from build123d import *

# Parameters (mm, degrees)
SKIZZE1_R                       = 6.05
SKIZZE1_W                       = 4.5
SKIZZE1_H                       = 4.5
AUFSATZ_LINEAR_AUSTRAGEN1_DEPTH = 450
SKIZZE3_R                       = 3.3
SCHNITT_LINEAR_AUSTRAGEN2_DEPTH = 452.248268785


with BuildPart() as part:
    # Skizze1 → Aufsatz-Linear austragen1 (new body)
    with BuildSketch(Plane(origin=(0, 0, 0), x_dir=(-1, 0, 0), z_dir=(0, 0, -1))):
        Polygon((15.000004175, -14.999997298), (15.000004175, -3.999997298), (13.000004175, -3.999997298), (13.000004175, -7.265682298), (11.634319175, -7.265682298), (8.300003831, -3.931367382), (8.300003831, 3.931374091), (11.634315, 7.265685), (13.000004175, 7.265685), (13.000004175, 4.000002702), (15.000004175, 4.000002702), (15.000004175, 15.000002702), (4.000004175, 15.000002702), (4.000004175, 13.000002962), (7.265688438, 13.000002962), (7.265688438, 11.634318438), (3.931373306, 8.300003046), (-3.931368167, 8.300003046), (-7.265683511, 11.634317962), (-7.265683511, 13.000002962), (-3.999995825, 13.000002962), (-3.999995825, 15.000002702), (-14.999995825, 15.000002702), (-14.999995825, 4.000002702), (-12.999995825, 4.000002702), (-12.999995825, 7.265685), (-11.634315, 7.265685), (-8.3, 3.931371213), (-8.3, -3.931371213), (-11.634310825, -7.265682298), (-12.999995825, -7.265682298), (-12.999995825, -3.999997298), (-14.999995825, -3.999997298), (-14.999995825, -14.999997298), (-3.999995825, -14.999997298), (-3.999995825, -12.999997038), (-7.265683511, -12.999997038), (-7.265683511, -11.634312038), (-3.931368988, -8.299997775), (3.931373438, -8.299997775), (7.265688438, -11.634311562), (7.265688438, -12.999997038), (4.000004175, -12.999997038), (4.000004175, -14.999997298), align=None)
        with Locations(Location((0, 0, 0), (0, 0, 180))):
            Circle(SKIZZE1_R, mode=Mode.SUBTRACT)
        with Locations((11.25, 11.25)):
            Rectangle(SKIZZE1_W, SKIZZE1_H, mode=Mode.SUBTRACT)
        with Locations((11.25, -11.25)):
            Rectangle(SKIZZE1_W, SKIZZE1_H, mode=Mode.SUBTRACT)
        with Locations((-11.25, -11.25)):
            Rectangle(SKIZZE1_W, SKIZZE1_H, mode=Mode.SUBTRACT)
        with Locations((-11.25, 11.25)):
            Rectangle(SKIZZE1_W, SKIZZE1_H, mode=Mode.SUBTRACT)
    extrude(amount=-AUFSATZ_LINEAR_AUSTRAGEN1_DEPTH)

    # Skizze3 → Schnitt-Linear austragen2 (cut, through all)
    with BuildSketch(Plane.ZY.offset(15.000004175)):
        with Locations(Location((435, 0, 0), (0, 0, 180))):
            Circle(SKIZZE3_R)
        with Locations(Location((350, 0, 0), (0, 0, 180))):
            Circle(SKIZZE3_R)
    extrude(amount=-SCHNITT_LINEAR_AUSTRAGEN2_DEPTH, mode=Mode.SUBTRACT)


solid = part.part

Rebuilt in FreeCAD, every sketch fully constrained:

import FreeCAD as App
import Part
import Sketcher

V = App.Vector
Q = App.Units.Quantity


def add_polygon(sketch, points):
    """Adds a closed chain of lines whose ends are joined by coincident constraints."""
    first, n = sketch.GeometryCount, len(points)
    for a, b in zip(points, points[1:] + points[:1]):
        sketch.addGeometry(Part.LineSegment(App.Vector(*a, 0), App.Vector(*b, 0)), False)
    for i in range(n):
        sketch.addConstraint(Sketcher.Constraint("Coincident", first + i, 2, first + (i + 1) % n, 1))

doc = App.newDocument("Part")
body = doc.addObject("PartDesign::Body", "Body")

# Sketch on XY plane
sketch1 = doc.addObject("Sketcher::SketchObject", "Sketch")
body.addObject(sketch1)
sketch1.AttachmentSupport = (doc.XY_Plane, [""])
sketch1.MapMode = "FlatFace"
add_polygon(sketch1, [(-15, -15), (-15, -4), (-13, -4), (-13, -7.3), (-11.6, -7.3), (-8.3, -3.9), (-8.3, 3.9), (-11.6, 7.3), (-13, 7.3), (-13, 4), (-15, 4), (-15, 15), (-4, 15), (-4, 13), (-7.3, 13), (-7.3, 11.6), (-3.9, 8.3), (3.9, 8.3), (7.3, 11.6), (7.3, 13), (4, 13), (4, 15), (15, 15), (15, 4), (13, 4), (13, 7.3), (11.6, 7.3), (8.3, 3.9), (8.3, -3.9), (11.6, -7.3), (13, -7.3), (13, -4), (15, -4), (15, -15), (4, -15), (4, -13), (7.3, -13), (7.3, -11.6), (3.9, -8.3), (-3.9, -8.3), (-7.3, -11.6), (-7.3, -13), (-4, -13), (-4, -15)])  # lines 0-43
add_polygon(sketch1, [(9, -13.5), (13.5, -13.5), (13.5, -9), (9, -9)])  # lines 44-47
add_polygon(sketch1, [(-13.5, -13.5), (-9, -13.5), (-9, -9), (-13.5, -9)])  # lines 48-51
add_polygon(sketch1, [(9, 9), (13.5, 9), (13.5, 13.5), (9, 13.5)])  # lines 52-55
sketch1.addGeometry(Part.Circle(V(0, 0, 0), V(0, 0, 1), 6), False)  # 56
add_polygon(sketch1, [(-13.5, 9), (-9, 9), (-9, 13.5), (-13.5, 13.5)])  # lines 57-60
sketch1.addConstraint([
    Sketcher.Constraint("Vertical", 0),
    Sketcher.Constraint("Horizontal", 1),
    Sketcher.Constraint("Vertical", 2),
    Sketcher.Constraint("Horizontal", 3),
    Sketcher.Constraint("Vertical", 5),
    Sketcher.Constraint("Horizontal", 7),
    Sketcher.Constraint("Vertical", 8),
    Sketcher.Constraint("Horizontal", 9),
    Sketcher.Constraint("Vertical", 10),
    Sketcher.Constraint("Horizontal", 11),
    Sketcher.Constraint("Vertical", 12),
    Sketcher.Constraint("Horizontal", 13),
    Sketcher.Constraint("Vertical", 14),
    Sketcher.Constraint("Horizontal", 16),
    Sketcher.Constraint("Vertical", 18),
    Sketcher.Constraint("Horizontal", 19),
    Sketcher.Constraint("Vertical", 20),
    Sketcher.Constraint("Horizontal", 21),
    Sketcher.Constraint("Vertical", 22),
    Sketcher.Constraint("Horizontal", 23),
    Sketcher.Constraint("Vertical", 24),
    Sketcher.Constraint("Horizontal", 25),
    Sketcher.Constraint("Vertical", 27),
    Sketcher.Constraint("Horizontal", 29),
    Sketcher.Constraint("Vertical", 30),
    Sketcher.Constraint("Horizontal", 31),
    Sketcher.Constraint("Vertical", 32),
    Sketcher.Constraint("Horizontal", 33),
    Sketcher.Constraint("Vertical", 34),
    Sketcher.Constraint("Horizontal", 35),
    Sketcher.Constraint("Vertical", 36),
    Sketcher.Constraint("Horizontal", 38),
    Sketcher.Constraint("Vertical", 40),
    Sketcher.Constraint("Horizontal", 41),
    Sketcher.Constraint("Vertical", 42),
    Sketcher.Constraint("Horizontal", 43),
    Sketcher.Constraint("Horizontal", 44),
    Sketcher.Constraint("Vertical", 45),
    Sketcher.Constraint("Horizontal", 46),
    Sketcher.Constraint("Vertical", 47),
    Sketcher.Constraint("Horizontal", 48),
    Sketcher.Constraint("Vertical", 49),
    Sketcher.Constraint("Horizontal", 50),
    Sketcher.Constraint("Vertical", 51),
    Sketcher.Constraint("Horizontal", 52),
    Sketcher.Constraint("Vertical", 53),
    Sketcher.Constraint("Horizontal", 54),
    Sketcher.Constraint("Vertical", 55),
    Sketcher.Constraint("Horizontal", 57),
    Sketcher.Constraint("Vertical", 58),
    Sketcher.Constraint("Horizontal", 59),
    Sketcher.Constraint("Vertical", 60),
    Sketcher.Constraint("Coincident", 56, 3, -1, 1),
    Sketcher.Constraint("Symmetric", 0, 2, 22, 2, -1, 1),
    Sketcher.Constraint("Symmetric", 2, 2, 24, 2, -1, 1),
    Sketcher.Constraint("Symmetric", 4, 2, 26, 2, -1, 1),
    Sketcher.Constraint("Symmetric", 6, 2, 28, 2, -1, 1),
    Sketcher.Constraint("Symmetric", 8, 2, 30, 2, -1, 1),
    Sketcher.Constraint("Symmetric", 10, 2, 32, 2, -1, 1),
    Sketcher.Constraint("Symmetric", 13, 2, 35, 2, -1, 1),
    Sketcher.Constraint("Symmetric", 15, 2, 37, 2, -1, 1),
    Sketcher.Constraint("Symmetric", 17, 2, 39, 2, -1, 1),
    Sketcher.Constraint("Symmetric", 20, 2, 42, 2, -1, 1),
    Sketcher.Constraint("Symmetric", 50, 2, 52, 2, -1, 1),
    Sketcher.Constraint("Symmetric", 48, 2, 54, 2, -1, 1),
    Sketcher.Constraint("Symmetric", 46, 2, 57, 2, -1, 1),
    Sketcher.Constraint("Symmetric", 44, 2, 59, 2, -1, 1),
    Sketcher.Constraint("Symmetric", 14, 2, 17, 2, -2),
    Sketcher.Constraint("Symmetric", 12, 2, 19, 2, -2),
    Sketcher.Constraint("Symmetric", 10, 2, 21, 2, -2),
    Sketcher.Constraint("Symmetric", 8, 2, 23, 2, -2),
    Sketcher.Constraint("Symmetric", 6, 2, 25, 2, -2),
    Sketcher.Constraint("Symmetric", 34, 2, 41, 2, -2),
    Sketcher.Constraint("Symmetric", 47, 2, 48, 2, -2),
    Sketcher.Constraint("Symmetric", 45, 2, 50, 2, -2),
    Sketcher.Constraint("Perpendicular", 4, 6),
    Sketcher.Constraint("Parallel", 6, 15),
    Sketcher.Constraint("Perpendicular", 15, 17),
    Sketcher.Constraint("Parallel", 17, 26),
    Sketcher.Constraint("Perpendicular", 26, 28),
    Sketcher.Constraint("Parallel", 28, 37),
    Sketcher.Constraint("Perpendicular", 37, 39),
    Sketcher.Constraint("Vertical", 16, 2, 37, 2),
    Sketcher.Constraint("Equal", 43, 0),
    Sketcher.Constraint("Equal", 41, 2),
    Sketcher.Constraint("Equal", 38, 5),
    Sketcher.Constraint("Equal", 31, 12),
    Sketcher.Constraint("Equal", 29, 14),
    Sketcher.Constraint("Equal", 59, 45),
    Sketcher.Constraint("Equal", 4, 15),
    Sketcher.Constraint("Diameter", 56, Q("12.1 mm")),
    Sketcher.Constraint("DistanceX", 1, 1, 1, 2, Q("2 mm")),
    Sketcher.Constraint("DistanceX", 11, 1, 11, 2, Q("11 mm")),
    Sketcher.Constraint("DistanceX", 44, 1, 44, 2, Q("4.5 mm")),
    Sketcher.Constraint("DistanceY", 45, 2, -1, 1, Q("9 mm")),
    Sketcher.Constraint("DistanceX", -1, 1, 46, 2, Q("9 mm")),
    Sketcher.Constraint("DistanceX", -1, 1, 26, 2, Q("8.3 mm")),
    Sketcher.Constraint("DistanceX", 7, 2, 7, 1, Q("1.365689 mm")),
    Sketcher.Constraint("DistanceX", 16, 1, 16, 2, Q("7.862741 mm")),
    Sketcher.Constraint("DistanceX", 3, 2, -1, 1, Q("11.634319 mm")),
])
pad1 = doc.addObject("PartDesign::Pad", "Pad")
body.addObject(pad1)
pad1.Profile = sketch1
pad1.Length = 450

# Sketch on YZ plane
sketch2 = doc.addObject("Sketcher::SketchObject", "Sketch001")
body.addObject(sketch2)
sketch2.AttachmentSupport = (doc.YZ_Plane, [""])
sketch2.MapMode = "FlatFace"
sketch2.AttachmentOffset = App.Placement(V(0, 0, -15.000004), App.Rotation())
sketch2.addGeometry([
    Part.Circle(V(0, 435, 0), V(0, 0, 1), 3.3),
    Part.Circle(V(0, 350, 0), V(0, 0, 1), 3.3),
], False)
sketch2.addConstraint([
    Sketcher.Constraint("Equal", 0, 1),
    Sketcher.Constraint("PointOnObject", 0, 3, -2),
    Sketcher.Constraint("PointOnObject", 1, 3, -2),
    Sketcher.Constraint("Diameter", 0, Q("6.6 mm")),
    Sketcher.Constraint("DistanceY", -1, 1, 0, 3, Q("435 mm")),
    Sketcher.Constraint("DistanceY", -1, 1, 1, 3, Q("350 mm")),
])
pocket1 = doc.addObject("PartDesign::Pocket", "Pocket")
body.addObject(pocket1)
pocket1.Profile = sketch2
pocket1.Type = "ThroughAll"
pocket1.Reversed = True

doc.recompute()
